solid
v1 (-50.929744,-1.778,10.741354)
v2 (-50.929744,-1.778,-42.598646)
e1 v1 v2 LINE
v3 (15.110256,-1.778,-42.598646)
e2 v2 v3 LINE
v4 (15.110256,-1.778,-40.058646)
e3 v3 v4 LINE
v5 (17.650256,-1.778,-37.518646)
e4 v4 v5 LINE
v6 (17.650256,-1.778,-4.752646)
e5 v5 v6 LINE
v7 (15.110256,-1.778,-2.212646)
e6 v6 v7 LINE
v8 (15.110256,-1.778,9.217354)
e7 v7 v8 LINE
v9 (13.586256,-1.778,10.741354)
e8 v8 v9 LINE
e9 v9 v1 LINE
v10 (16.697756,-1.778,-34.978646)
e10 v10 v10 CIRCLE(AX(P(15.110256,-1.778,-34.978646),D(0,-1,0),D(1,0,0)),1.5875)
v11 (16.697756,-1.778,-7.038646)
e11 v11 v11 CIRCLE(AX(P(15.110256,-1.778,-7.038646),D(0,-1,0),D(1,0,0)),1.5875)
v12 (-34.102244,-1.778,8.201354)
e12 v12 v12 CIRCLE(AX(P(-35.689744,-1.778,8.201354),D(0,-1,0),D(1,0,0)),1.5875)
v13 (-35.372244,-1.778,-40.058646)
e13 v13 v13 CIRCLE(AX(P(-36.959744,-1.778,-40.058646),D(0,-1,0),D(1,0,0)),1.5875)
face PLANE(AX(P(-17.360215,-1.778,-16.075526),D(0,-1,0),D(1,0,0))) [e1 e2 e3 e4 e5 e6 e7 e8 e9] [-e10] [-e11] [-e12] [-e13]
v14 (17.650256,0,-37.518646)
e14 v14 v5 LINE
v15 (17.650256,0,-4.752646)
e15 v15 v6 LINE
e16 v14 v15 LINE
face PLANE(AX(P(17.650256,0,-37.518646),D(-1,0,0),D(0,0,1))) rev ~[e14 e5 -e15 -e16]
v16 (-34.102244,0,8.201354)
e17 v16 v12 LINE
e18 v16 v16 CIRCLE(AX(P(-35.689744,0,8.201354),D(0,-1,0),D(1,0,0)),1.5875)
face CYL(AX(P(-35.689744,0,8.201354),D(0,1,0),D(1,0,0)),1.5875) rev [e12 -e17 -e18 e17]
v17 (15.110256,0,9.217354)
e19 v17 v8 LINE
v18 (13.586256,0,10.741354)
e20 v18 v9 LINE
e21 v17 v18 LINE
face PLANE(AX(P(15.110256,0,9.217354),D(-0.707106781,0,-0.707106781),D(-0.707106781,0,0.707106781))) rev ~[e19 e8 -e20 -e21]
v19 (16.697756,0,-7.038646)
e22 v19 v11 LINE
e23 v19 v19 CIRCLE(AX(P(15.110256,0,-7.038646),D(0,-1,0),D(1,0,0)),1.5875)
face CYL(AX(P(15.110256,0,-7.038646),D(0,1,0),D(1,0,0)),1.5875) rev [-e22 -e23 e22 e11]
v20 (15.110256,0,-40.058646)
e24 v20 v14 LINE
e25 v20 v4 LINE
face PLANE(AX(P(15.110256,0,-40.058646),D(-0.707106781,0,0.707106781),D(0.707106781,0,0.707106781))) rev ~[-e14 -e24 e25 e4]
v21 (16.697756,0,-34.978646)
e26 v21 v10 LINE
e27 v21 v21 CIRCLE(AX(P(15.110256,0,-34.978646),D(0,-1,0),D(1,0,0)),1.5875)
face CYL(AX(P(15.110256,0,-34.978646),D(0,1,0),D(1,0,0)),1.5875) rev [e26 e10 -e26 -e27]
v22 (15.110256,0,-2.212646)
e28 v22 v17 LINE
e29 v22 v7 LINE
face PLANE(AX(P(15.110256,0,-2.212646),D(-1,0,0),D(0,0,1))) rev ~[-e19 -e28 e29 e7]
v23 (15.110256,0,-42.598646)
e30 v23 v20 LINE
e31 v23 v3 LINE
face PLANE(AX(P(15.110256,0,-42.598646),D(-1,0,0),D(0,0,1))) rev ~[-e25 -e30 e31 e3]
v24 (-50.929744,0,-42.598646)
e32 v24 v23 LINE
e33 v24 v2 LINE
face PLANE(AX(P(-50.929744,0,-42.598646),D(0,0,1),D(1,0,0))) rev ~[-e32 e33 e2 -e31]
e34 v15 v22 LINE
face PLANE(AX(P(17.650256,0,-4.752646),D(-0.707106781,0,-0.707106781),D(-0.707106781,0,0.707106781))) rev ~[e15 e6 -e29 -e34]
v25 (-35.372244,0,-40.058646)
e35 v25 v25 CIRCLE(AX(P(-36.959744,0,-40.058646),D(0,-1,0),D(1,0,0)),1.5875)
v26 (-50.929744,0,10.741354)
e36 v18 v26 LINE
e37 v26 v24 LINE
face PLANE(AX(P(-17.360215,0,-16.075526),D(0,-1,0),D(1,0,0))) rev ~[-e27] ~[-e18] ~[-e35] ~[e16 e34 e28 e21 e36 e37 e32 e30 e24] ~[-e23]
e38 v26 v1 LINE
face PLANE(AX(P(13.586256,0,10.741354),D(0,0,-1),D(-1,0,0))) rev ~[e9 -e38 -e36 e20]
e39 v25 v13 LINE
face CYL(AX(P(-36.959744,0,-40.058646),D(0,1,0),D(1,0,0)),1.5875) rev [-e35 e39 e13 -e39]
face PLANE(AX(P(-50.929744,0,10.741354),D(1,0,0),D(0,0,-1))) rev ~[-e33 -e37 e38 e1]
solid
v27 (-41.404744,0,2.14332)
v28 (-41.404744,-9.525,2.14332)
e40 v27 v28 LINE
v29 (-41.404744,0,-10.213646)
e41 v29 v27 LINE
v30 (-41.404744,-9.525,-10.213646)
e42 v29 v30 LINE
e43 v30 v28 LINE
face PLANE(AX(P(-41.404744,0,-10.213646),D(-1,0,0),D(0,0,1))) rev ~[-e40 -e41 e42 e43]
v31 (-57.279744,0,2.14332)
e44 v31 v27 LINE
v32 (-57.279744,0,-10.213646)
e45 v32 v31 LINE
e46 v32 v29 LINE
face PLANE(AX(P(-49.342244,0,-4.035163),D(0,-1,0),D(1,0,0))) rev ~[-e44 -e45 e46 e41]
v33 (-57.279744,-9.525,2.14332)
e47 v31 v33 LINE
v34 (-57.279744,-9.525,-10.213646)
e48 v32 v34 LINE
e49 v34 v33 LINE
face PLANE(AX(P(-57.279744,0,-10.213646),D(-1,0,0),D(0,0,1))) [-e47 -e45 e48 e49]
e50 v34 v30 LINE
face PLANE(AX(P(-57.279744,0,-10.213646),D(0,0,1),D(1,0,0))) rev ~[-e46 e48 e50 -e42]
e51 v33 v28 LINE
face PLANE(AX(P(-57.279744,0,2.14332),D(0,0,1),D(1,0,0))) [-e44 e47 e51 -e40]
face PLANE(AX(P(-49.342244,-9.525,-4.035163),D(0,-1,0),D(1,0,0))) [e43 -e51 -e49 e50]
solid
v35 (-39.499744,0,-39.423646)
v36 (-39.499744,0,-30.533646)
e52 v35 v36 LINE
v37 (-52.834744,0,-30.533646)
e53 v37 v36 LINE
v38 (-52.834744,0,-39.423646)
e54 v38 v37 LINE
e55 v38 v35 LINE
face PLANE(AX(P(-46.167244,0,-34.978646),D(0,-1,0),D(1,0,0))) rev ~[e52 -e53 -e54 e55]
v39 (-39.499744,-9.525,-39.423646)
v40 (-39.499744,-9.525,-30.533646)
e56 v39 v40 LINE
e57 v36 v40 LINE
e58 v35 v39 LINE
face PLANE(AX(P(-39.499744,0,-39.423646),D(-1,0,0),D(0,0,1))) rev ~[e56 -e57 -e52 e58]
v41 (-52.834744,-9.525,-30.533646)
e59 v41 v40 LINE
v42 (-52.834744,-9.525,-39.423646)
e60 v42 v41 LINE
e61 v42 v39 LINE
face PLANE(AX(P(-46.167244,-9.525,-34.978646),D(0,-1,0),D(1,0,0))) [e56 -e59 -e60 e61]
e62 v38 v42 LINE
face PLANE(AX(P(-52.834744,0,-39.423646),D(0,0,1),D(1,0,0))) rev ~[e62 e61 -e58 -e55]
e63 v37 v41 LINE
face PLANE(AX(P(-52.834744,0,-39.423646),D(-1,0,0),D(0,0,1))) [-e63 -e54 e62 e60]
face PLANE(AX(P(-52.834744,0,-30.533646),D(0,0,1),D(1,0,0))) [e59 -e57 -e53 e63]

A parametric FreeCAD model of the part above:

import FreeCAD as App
import Part
import Sketcher

V = App.Vector
Q = App.Units.Quantity

doc = App.newDocument("Part")
body = doc.addObject("PartDesign::Body", "Body")
body.AllowCompound = True

sketch1 = body.newObject("Sketcher::SketchObject", "Sketch")
sketch1.AttachmentSupport = (doc.getObject("XZ_Plane"), [""])
sketch1.MapMode = "FlatFace"
sketch1.addGeometry([
    Part.LineSegment(V(-57, 2, 0), V(-57, -10, 0)),
    Part.LineSegment(V(-57, -10, 0), V(-41, -10, 0)),
    Part.LineSegment(V(-41, -10, 0), V(-41, 2, 0)),
    Part.LineSegment(V(-41, 2, 0), V(-57, 2, 0)),
    Part.LineSegment(V(-53, -31, 0), V(-53, -39, 0)),
    Part.LineSegment(V(-53, -39, 0), V(-39, -39, 0)),
    Part.LineSegment(V(-39, -39, 0), V(-39, -31, 0)),
    Part.LineSegment(V(-39, -31, 0), V(-53, -31, 0)),
], False)
sketch1.addConstraint([
    Sketcher.Constraint("Coincident", 0, 2, 1, 1),
    Sketcher.Constraint("Coincident", 1, 2, 2, 1),
    Sketcher.Constraint("Coincident", 2, 2, 3, 1),
    Sketcher.Constraint("Coincident", 3, 2, 0, 1),
    Sketcher.Constraint("Coincident", 4, 2, 5, 1),
    Sketcher.Constraint("Coincident", 5, 2, 6, 1),
    Sketcher.Constraint("Coincident", 6, 2, 7, 1),
    Sketcher.Constraint("Coincident", 7, 2, 4, 1),
    Sketcher.Constraint("Vertical", 0),
    Sketcher.Constraint("Horizontal", 1),
    Sketcher.Constraint("Vertical", 2),
    Sketcher.Constraint("Horizontal", 3),
    Sketcher.Constraint("Vertical", 4),
    Sketcher.Constraint("Horizontal", 5),
    Sketcher.Constraint("Vertical", 6),
    Sketcher.Constraint("Horizontal", 7),
    Sketcher.Constraint("DistanceY", 4, 2, 4, 1, Q("0.35 in")),
    Sketcher.Constraint("DistanceX", 0, 2, 5, 2, Q("0.7 in")),
    Sketcher.Constraint("DistanceY", 6, 2, 1, 2, Q("0.8 in")),
    Sketcher.Constraint("DistanceX", 1, 1, 1, 2, Q("0.625 in")),
    Sketcher.Constraint("DistanceX", 5, 1, 5, 2, Q("0.525 in")),
    Sketcher.Constraint("DistanceY", 0, 2, 0, 1, Q("12.356966 mm")),
    Sketcher.Constraint("DistanceY", -1, 1, 2, 2, Q("2.14332 mm")),
    Sketcher.Constraint("DistanceX", 0, 2, -1, 1, Q("57.279744 mm")),
])
pad1 = body.newObject("PartDesign::Pad", "Pad")
pad1.Profile = sketch1
pad1.Length = Q("0.375 in")
body2 = doc.addObject("PartDesign::Body", "Body001")

sketch2 = body2.newObject("Sketcher::SketchObject", "Sketch001")
sketch2.AttachmentSupport = (doc.getObject("XZ_Plane001"), [""])
sketch2.MapMode = "FlatFace"
sketch2.addGeometry([
    Part.LineSegment(V(13.6, 10.7, 0), V(-50.9, 10.7, 0)),
    Part.LineSegment(V(-50.9, 10.7, 0), V(-50.9, -42.6, 0)),
    Part.LineSegment(V(-50.9, -42.6, 0), V(15.1, -42.6, 0)),
    Part.LineSegment(V(15.1, -42.6, 0), V(15.1, -40.1, 0)),
    Part.LineSegment(V(15.1, -40.1, 0), V(17.7, -37.5, 0)),
    Part.LineSegment(V(17.7, -37.5, 0), V(17.7, -4.8, 0)),
    Part.LineSegment(V(17.7, -4.8, 0), V(15.1, -2.2, 0)),
    Part.LineSegment(V(15.1, -2.2, 0), V(15.1, 9.2, 0)),
    Part.LineSegment(V(15.1, 9.2, 0), V(13.6, 10.7, 0)),
    Part.Circle(V(-37, -40.1, 0), V(0, 0, 1), 1.6),
    Part.Circle(V(15.1, -35, 0), V(0, 0, 1), 1.6),
    Part.Circle(V(-35.7, 8.2, 0), V(0, 0, 1), 1.6),
    Part.Circle(V(15.1, -7, 0), V(0, 0, 1), 1.6),
], False)
sketch2.addConstraint([
    Sketcher.Constraint("Coincident", 0, 2, 1, 1),
    Sketcher.Constraint("Coincident", 1, 2, 2, 1),
    Sketcher.Constraint("Coincident", 2, 2, 3, 1),
    Sketcher.Constraint("Coincident", 3, 2, 4, 1),
    Sketcher.Constraint("Coincident", 4, 2, 5, 1),
    Sketcher.Constraint("Coincident", 5, 2, 6, 1),
    Sketcher.Constraint("Coincident", 6, 2, 7, 1),
    Sketcher.Constraint("Coincident", 7, 2, 8, 1),
    Sketcher.Constraint("Coincident", 8, 2, 0, 1),
    Sketcher.Constraint("Horizontal", 0),
    Sketcher.Constraint("Vertical", 1),
    Sketcher.Constraint("Horizontal", 2),
    Sketcher.Constraint("Vertical", 3),
    Sketcher.Constraint("Vertical", 5),
    Sketcher.Constraint("Vertical", 7),
    Sketcher.Constraint("Equal", 9, 10),
    Sketcher.Constraint("Equal", 10, 11),
    Sketcher.Constraint("Equal", 11, 12),
    Sketcher.Constraint("Perpendicular", 4, 6),
    Sketcher.Constraint("Parallel", 6, 8),
    Sketcher.Constraint("Horizontal", 9, 3, 3, 2),
    Sketcher.Constraint("Vertical", 10, 3, 12, 3),
    Sketcher.Constraint("Vertical", 12, 3, 2, 2),
    Sketcher.Constraint("Vertical", 3, 2, 6, 2),
    Sketcher.Constraint("Equal", 4, 6),
    Sketcher.Constraint("Diameter", 9, Q("0.125 in")),
    Sketcher.Constraint("DistanceX", 2, 1, 2, 2, Q("2.6 in")),
    Sketcher.Constraint("DistanceY", 1, 2, 1, 1, Q("2.1 in")),
    Sketcher.Constraint("DistanceY", 3, 1, 3, 2, Q("0.1 in")),
    Sketcher.Constraint("DistanceX", 11, 3, 10, 3, Q("2 in")),
    Sketcher.Constraint("DistanceY", 1, 2, 11, 3, Q("2 in")),
    Sketcher.Constraint("DistanceX", 0, 2, 0, 1, Q("2.54 in")),
    Sketcher.Constraint("DistanceY", 5, 1, 5, 2, Q("1.29 in")),
    Sketcher.Constraint("DistanceY", 7, 1, 7, 2, Q("0.45 in")),
    Sketcher.Constraint("DistanceY", 9, 3, 10, 3, Q("0.2 in")),
    Sketcher.Constraint("DistanceY", 10, 3, 12, 3, Q("1.1 in")),
    Sketcher.Constraint("DistanceX", 9, 3, 10, 3, Q("2.05 in")),
    Sketcher.Constraint("DistanceX", 9, 3, -1, 1, Q("36.959744 mm")),
    Sketcher.Constraint("DistanceY", 9, 3, -1, 1, Q("40.058646 mm")),
])
pad2 = body2.newObject("PartDesign::Pad", "Pad001")
pad2.Profile = sketch2
pad2.Length = Q("0.07 in")

doc.recompute()
